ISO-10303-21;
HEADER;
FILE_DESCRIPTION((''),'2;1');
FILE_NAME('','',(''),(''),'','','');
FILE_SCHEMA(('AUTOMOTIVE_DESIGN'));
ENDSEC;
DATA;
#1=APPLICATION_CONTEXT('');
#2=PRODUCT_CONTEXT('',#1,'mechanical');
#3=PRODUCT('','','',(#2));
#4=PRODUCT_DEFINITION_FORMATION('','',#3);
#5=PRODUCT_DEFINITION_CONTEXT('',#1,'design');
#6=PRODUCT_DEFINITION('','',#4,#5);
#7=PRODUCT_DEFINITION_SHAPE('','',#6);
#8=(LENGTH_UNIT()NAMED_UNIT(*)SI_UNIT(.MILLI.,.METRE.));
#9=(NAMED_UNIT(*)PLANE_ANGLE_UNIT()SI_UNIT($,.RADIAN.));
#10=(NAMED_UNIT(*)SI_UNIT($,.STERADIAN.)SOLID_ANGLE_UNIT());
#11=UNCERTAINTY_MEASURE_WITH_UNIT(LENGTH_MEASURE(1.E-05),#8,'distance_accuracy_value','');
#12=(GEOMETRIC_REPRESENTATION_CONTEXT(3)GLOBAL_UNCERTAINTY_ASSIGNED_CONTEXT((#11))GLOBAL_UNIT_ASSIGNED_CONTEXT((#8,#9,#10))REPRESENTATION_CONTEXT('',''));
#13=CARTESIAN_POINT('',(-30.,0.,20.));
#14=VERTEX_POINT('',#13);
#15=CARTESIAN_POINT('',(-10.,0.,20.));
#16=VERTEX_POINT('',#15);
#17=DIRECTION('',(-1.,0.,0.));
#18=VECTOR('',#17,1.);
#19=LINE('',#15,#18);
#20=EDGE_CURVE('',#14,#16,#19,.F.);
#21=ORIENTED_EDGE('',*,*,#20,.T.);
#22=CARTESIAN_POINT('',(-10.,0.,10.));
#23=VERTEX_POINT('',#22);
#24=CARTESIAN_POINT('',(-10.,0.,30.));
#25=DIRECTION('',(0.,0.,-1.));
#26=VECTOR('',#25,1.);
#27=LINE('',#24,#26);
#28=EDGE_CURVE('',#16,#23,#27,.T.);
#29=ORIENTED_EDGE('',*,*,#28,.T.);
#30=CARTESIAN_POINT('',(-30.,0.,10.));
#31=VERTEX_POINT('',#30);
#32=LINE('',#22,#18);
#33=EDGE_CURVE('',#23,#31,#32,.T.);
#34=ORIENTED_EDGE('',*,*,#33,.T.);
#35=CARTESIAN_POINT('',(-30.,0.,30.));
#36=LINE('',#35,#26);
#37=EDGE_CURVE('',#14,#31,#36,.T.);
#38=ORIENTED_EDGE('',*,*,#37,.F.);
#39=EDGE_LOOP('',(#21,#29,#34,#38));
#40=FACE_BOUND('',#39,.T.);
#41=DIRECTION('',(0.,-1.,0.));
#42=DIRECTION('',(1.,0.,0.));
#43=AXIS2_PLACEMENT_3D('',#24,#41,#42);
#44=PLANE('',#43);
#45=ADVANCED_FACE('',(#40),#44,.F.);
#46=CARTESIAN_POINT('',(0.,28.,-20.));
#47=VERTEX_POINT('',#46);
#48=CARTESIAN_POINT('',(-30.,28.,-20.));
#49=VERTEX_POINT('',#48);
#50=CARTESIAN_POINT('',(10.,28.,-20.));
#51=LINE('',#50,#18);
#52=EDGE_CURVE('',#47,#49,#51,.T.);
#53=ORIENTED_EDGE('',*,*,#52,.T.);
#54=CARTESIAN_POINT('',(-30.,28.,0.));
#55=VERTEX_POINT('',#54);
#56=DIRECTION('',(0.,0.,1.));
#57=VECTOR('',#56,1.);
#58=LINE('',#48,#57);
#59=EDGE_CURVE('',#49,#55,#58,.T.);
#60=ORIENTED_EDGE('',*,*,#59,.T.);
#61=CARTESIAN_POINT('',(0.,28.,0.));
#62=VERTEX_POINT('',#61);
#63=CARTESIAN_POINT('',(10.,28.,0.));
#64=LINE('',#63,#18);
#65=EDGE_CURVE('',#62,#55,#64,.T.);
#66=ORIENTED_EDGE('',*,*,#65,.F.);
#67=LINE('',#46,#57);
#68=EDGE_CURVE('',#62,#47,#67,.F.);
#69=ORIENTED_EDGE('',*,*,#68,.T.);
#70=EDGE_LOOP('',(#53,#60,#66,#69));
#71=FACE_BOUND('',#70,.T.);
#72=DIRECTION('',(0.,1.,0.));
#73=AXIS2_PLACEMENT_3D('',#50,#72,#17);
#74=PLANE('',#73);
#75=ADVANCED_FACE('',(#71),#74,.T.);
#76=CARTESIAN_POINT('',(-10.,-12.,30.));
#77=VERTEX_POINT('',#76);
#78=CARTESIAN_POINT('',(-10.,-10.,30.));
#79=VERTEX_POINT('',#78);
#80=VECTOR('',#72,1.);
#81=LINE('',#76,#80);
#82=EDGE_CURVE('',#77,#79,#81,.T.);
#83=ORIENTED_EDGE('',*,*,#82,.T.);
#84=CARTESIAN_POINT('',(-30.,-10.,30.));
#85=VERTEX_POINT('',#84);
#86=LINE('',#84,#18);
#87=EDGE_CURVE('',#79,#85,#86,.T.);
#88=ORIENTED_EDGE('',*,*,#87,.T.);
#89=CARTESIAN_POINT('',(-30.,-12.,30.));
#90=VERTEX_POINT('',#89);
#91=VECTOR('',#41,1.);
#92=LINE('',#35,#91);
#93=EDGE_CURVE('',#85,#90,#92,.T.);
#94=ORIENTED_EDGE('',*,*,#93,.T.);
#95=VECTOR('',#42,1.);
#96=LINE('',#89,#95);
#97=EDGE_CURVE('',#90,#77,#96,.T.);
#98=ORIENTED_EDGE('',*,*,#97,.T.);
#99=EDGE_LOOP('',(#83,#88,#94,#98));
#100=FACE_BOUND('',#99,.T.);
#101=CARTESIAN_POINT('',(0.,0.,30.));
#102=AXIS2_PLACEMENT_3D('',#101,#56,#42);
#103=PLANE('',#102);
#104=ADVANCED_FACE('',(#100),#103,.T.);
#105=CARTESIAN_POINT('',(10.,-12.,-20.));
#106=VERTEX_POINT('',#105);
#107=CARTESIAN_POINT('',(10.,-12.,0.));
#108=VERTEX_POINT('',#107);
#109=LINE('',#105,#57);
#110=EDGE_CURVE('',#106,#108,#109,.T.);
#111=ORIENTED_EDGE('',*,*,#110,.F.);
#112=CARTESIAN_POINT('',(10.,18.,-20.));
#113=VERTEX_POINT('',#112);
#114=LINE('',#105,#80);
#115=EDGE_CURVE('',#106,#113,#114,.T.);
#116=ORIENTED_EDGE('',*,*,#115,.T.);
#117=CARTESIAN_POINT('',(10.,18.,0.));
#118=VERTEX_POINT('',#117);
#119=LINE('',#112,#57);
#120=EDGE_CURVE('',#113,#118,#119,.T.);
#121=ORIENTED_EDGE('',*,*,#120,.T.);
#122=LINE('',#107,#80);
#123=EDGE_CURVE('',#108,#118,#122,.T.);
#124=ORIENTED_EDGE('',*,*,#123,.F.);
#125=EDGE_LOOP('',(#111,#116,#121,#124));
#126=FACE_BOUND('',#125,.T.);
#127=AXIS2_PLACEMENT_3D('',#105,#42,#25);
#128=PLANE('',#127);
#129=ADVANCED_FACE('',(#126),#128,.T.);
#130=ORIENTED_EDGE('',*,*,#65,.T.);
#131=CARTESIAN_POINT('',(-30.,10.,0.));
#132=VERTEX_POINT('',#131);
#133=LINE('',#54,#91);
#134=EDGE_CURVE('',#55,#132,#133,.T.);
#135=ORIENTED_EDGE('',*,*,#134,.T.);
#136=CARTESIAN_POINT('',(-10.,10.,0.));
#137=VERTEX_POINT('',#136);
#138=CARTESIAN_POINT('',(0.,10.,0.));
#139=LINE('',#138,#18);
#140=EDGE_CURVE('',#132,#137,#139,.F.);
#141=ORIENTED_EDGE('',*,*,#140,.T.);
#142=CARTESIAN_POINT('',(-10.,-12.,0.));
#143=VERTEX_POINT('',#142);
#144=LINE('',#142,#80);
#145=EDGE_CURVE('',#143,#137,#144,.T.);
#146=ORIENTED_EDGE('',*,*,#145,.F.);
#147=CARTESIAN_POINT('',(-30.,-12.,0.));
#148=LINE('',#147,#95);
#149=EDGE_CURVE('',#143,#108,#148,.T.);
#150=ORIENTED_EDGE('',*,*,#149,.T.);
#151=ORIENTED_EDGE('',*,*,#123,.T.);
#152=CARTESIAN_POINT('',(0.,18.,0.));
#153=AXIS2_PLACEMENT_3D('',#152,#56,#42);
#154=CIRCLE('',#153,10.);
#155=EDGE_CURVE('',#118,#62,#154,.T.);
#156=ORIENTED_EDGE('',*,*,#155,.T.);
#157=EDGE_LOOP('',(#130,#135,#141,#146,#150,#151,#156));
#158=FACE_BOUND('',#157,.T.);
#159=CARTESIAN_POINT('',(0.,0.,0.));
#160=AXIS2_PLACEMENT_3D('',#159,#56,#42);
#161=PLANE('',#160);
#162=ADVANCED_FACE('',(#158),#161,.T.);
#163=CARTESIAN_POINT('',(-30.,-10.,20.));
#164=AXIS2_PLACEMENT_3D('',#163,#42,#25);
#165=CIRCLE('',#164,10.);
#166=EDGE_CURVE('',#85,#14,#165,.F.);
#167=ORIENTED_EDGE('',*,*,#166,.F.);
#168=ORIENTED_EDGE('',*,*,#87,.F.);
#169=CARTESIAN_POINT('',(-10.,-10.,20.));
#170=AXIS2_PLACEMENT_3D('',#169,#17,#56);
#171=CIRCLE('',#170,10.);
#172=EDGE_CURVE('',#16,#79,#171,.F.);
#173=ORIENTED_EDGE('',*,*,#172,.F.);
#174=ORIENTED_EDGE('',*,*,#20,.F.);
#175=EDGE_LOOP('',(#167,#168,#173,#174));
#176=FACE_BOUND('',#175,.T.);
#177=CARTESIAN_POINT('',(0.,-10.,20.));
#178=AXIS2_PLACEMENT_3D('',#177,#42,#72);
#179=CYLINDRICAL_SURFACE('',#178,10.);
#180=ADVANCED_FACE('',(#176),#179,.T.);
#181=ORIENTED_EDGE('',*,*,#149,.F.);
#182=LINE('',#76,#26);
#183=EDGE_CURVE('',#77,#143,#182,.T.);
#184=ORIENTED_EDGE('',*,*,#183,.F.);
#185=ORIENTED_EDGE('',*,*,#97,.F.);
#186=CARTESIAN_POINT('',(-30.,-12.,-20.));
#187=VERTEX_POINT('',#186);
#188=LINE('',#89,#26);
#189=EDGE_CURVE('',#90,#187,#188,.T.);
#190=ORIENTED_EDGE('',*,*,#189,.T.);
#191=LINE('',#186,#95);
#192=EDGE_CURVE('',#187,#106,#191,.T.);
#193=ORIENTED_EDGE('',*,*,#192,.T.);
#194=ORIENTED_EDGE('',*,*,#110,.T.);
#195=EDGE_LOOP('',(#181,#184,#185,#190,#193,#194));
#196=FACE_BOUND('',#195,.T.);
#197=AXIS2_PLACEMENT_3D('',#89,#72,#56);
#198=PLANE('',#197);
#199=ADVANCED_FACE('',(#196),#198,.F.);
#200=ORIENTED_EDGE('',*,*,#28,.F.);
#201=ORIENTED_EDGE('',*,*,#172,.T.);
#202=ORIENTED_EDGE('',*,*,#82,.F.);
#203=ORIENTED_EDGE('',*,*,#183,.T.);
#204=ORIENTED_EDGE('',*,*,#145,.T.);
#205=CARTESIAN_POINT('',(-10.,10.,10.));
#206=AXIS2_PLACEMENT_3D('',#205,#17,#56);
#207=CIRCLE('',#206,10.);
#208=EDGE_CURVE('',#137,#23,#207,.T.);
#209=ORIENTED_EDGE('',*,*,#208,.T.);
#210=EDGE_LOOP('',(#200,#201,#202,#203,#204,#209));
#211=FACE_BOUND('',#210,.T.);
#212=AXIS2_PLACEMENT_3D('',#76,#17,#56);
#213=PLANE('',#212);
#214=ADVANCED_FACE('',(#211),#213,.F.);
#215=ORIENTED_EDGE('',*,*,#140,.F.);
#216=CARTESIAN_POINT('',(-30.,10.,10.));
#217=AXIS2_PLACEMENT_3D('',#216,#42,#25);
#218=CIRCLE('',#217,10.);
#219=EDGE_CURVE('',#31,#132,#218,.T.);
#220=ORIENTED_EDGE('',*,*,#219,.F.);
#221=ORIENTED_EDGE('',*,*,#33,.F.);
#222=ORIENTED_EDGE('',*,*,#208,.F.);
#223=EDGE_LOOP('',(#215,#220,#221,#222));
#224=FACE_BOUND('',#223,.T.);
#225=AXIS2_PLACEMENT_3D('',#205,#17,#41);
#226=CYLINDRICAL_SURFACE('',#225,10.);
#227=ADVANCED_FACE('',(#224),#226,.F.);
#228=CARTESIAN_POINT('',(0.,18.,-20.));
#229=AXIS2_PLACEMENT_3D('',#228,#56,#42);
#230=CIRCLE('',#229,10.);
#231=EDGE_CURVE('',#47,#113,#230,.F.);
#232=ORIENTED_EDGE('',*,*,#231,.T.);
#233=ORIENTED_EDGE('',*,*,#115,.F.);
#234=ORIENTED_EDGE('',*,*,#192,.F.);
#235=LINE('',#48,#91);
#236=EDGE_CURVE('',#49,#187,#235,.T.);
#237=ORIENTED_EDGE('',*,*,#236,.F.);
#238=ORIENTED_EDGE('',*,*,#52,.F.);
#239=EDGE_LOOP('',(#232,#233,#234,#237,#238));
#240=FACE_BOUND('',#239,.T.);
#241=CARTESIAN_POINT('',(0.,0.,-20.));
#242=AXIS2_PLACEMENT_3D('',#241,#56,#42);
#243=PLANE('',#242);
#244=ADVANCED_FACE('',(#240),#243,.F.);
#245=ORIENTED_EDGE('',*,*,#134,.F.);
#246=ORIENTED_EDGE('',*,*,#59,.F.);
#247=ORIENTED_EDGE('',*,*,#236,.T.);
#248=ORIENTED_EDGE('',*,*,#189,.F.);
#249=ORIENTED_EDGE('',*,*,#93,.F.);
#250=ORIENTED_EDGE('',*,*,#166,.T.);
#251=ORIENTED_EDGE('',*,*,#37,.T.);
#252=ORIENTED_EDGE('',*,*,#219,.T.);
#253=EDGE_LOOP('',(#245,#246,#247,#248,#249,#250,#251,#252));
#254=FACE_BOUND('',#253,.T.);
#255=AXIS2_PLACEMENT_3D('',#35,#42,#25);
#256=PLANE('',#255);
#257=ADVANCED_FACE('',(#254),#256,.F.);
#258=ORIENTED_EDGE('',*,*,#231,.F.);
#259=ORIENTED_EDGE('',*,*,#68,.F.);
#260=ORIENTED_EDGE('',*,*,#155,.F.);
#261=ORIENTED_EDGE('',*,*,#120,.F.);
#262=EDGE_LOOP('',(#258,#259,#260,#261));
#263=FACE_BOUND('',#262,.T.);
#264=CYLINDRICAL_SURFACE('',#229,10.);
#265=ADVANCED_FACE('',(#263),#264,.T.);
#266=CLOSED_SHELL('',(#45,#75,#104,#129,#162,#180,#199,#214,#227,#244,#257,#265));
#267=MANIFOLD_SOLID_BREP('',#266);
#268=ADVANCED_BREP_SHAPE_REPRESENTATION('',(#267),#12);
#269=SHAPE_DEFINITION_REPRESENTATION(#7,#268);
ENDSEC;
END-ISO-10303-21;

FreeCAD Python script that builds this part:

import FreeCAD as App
import Part
import Sketcher
from FreeCAD import Vector
Q = App.Units.Quantity


def edges_at(feature, points):
    """Names of the edges that pass closest to the given points."""
    edges = feature.Shape.Edges
    near = lambda p: min(range(len(edges)), key=lambda i: edges[i].distToShape(Part.Vertex(*p))[0])
    return sorted({f"Edge{near(p) + 1}" for p in points})

doc = App.newDocument("Part")
body = doc.addObject("PartDesign::Body", "Body")

sketch1 = doc.addObject("Sketcher::SketchObject", "Sketch")
body.addObject(sketch1)
sketch1.AttachmentSupport = (doc.XY_Plane, [""])
sketch1.MapMode = "FlatFace"
sketch1.addGeometry(Part.LineSegment(Vector(-30, 0, 0), Vector(-30, -12, 0)), False)
sketch1.addGeometry(Part.LineSegment(Vector(-30, -12, 0), Vector(-10, -12, 0)), False)
sketch1.addGeometry(Part.LineSegment(Vector(-10, -12, 0), Vector(-10, 0, 0)), False)
sketch1.addGeometry(Part.LineSegment(Vector(-10, 0, 0), Vector(-30, 0, 0)), False)
sketch1.addConstraint(Sketcher.Constraint("Coincident", 0, 2, 1, 1))
sketch1.addConstraint(Sketcher.Constraint("Coincident", 1, 2, 2, 1))
sketch1.addConstraint(Sketcher.Constraint("Coincident", 2, 2, 3, 1))
sketch1.addConstraint(Sketcher.Constraint("Coincident", 3, 2, 0, 1))
sketch1.addConstraint(Sketcher.Constraint("Vertical", 0))
sketch1.addConstraint(Sketcher.Constraint("Horizontal", 1))
sketch1.addConstraint(Sketcher.Constraint("Vertical", 2))
sketch1.addConstraint(Sketcher.Constraint("Horizontal", 3))
sketch1.addConstraint(Sketcher.Constraint("PointOnObject", 2, 2, -1))
sketch1.addConstraint(Sketcher.Constraint("DistanceX", 1, 1, 1, 2, Q("20 mm")))
sketch1.addConstraint(Sketcher.Constraint("DistanceY", 0, 2, 0, 1, Q("12 mm")))
sketch1.addConstraint(Sketcher.Constraint("DistanceX", 0, 2, -1, 1, Q("30 mm")))
pad1 = doc.addObject("PartDesign::Pad", "Pad")
body.addObject(pad1)
pad1.Profile = sketch1
pad1.Length = 30

sketch2 = doc.addObject("Sketcher::SketchObject", "Sketch001")
body.addObject(sketch2)
sketch2.AttachmentSupport = (doc.XY_Plane, [""])
sketch2.MapMode = "FlatFace"
sketch2.addGeometry(Part.LineSegment(Vector(-30, 28, 0), Vector(-30, -12, 0)), False)
sketch2.addGeometry(Part.LineSegment(Vector(-30, -12, 0), Vector(10, -12, 0)), False)
sketch2.addGeometry(Part.LineSegment(Vector(10, -12, 0), Vector(10, 28, 0)), False)
sketch2.addGeometry(Part.LineSegment(Vector(10, 28, 0), Vector(-30, 28, 0)), False)
sketch2.addConstraint(Sketcher.Constraint("Coincident", 0, 2, 1, 1))
sketch2.addConstraint(Sketcher.Constraint("Coincident", 1, 2, 2, 1))
sketch2.addConstraint(Sketcher.Constraint("Coincident", 2, 2, 3, 1))
sketch2.addConstraint(Sketcher.Constraint("Coincident", 3, 2, 0, 1))
sketch2.addConstraint(Sketcher.Constraint("Vertical", 0))
sketch2.addConstraint(Sketcher.Constraint("Horizontal", 1))
sketch2.addConstraint(Sketcher.Constraint("Vertical", 2))
sketch2.addConstraint(Sketcher.Constraint("Horizontal", 3))
sketch2.addConstraint(Sketcher.Constraint("Equal", 3, 0))
sketch2.addConstraint(Sketcher.Constraint("DistanceX", 1, 1, 1, 2, Q("40 mm")))
sketch2.addConstraint(Sketcher.Constraint("DistanceX", 0, 2, -1, 1, Q("30 mm")))
sketch2.addConstraint(Sketcher.Constraint("DistanceY", 0, 2, -1, 1, Q("12 mm")))
pad2 = doc.addObject("PartDesign::Pad", "Pad001")
body.addObject(pad2)
pad2.Profile = sketch2
pad2.Length = 20
pad2.Reversed = True
doc.recompute()

fillet = doc.addObject("PartDesign::Fillet", "Fillet")
body.addObject(fillet)
fillet.Base = (pad2, edges_at(pad2, [(10, 28, -10), (-20, 0, 30), (-20, 0, 0)]))
fillet.Radius = 10

doc.recompute()
